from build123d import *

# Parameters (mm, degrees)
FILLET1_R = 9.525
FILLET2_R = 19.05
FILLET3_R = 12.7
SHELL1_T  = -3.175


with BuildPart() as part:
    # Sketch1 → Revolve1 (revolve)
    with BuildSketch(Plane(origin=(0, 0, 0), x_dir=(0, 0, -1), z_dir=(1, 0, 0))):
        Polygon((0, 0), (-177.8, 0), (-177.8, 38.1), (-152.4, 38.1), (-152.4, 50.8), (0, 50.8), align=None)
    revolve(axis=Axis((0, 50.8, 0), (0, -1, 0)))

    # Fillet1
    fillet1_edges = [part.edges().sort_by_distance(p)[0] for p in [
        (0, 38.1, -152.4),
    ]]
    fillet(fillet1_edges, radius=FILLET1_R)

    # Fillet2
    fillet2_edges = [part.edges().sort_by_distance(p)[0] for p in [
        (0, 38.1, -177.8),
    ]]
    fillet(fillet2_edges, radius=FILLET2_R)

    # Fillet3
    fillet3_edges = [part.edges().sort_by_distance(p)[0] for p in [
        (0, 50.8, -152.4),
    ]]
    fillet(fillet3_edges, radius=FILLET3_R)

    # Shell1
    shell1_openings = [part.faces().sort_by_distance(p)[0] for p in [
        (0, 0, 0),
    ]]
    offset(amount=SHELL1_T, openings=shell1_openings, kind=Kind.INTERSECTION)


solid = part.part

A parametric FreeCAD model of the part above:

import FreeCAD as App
import Part
import Sketcher

V = App.Vector
Q = App.Units.Quantity


def edges_at(feature, points):
    """Names of the edges that pass closest to the given points."""
    edges = feature.Shape.Edges
    near = lambda p: min(range(len(edges)), key=lambda i: edges[i].distToShape(Part.Vertex(*p))[0])
    return sorted({f"Edge{near(p) + 1}" for p in points})


def faces_at(feature, points):
    """Names of the faces that lie closest to the given points."""
    faces = feature.Shape.Faces
    near = lambda p: min(range(len(faces)), key=lambda i: faces[i].distToShape(Part.Vertex(*p))[0])
    return sorted({f"Face{near(p) + 1}" for p in points})


def add_polygon(sketch, points):
    """Adds a closed chain of lines whose ends are joined by coincident constraints."""
    first, n = sketch.GeometryCount, len(points)
    for a, b in zip(points, points[1:] + points[:1]):
        sketch.addGeometry(Part.LineSegment(App.Vector(*a, 0), App.Vector(*b, 0)), False)
    for i in range(n):
        sketch.addConstraint(Sketcher.Constraint("Coincident", first + i, 2, first + (i + 1) % n, 1))

doc = App.newDocument("Part")
params = doc.addObject("Spreadsheet::Sheet", "Params")
for row, (alias, value) in enumerate([
    ("sketch1_width", "2 in"),
    ("sketch1_height", "7 in"),
    ("sketch1_height2", "6 in"),
    ("sketch1_width2", "0.5 in"),
    ("revolution_angle", "360 deg"),
    ("fillet_radius", "0.375 in"),
    ("fillet2_radius", "0.75 in"),
    ("fillet3_radius", "0.5 in"),
    ("thickness_wall", "0.125 in"),
], start=1):
    params.set(f"A{row}", alias)
    params.set(f"B{row}", "=" + value)
    params.setAlias(f"B{row}", alias)

body = doc.addObject("PartDesign::Body", "Body")

sketch1 = doc.addObject("Sketcher::SketchObject", "Sketch")
body.addObject(sketch1)
sketch1.AttachmentSupport = (doc.YZ_Plane, [""])
sketch1.MapMode = "FlatFace"
add_polygon(sketch1, [(0, 178), (0, 0), (51, 0), (51, 152), (38, 152), (38, 178)])
sketch1.addConstraint(Sketcher.Constraint("Vertical", 0))
sketch1.addConstraint(Sketcher.Constraint("Horizontal", 1))
sketch1.addConstraint(Sketcher.Constraint("Vertical", 2))
sketch1.addConstraint(Sketcher.Constraint("Horizontal", 3))
sketch1.addConstraint(Sketcher.Constraint("Vertical", 4))
sketch1.addConstraint(Sketcher.Constraint("Horizontal", 5))
sketch1.addConstraint(Sketcher.Constraint("Coincident", 0, 2, -1, 1))
sketch1.addConstraint(Sketcher.Constraint("DistanceX", 1, 1, 1, 2, Q("2 in")))
sketch1.addConstraint(Sketcher.Constraint("DistanceY", 0, 2, 0, 1, Q("7 in")))
sketch1.addConstraint(Sketcher.Constraint("DistanceY", 2, 1, 2, 2, Q("6 in")))
sketch1.addConstraint(Sketcher.Constraint("DistanceX", 3, 2, 3, 1, Q("0.5 in")))
sketch1.setExpression("Constraints[13]", "Params.sketch1_width")
sketch1.setExpression("Constraints[14]", "Params.sketch1_height")
sketch1.setExpression("Constraints[15]", "Params.sketch1_height2")
sketch1.setExpression("Constraints[16]", "Params.sketch1_width2")
revolution = doc.addObject("PartDesign::Revolution", "Revolution")
body.addObject(revolution)
revolution.Profile = sketch1
revolution.ReferenceAxis = (sketch1, ["H_Axis"])
revolution.setExpression("Angle", "Params.revolution_angle")
doc.recompute()

fillet = doc.addObject("PartDesign::Fillet", "Fillet")
body.addObject(fillet)
fillet.Base = (revolution, edges_at(revolution, [(0, 38.1, -152.4)]))
fillet.setExpression("Radius", "Params.fillet_radius")
doc.recompute()

fillet2 = doc.addObject("PartDesign::Fillet", "Fillet001")
body.addObject(fillet2)
fillet2.Base = (fillet, edges_at(fillet, [(0, 38.1, -177.8)]))
fillet2.setExpression("Radius", "Params.fillet2_radius")
doc.recompute()

fillet3 = doc.addObject("PartDesign::Fillet", "Fillet002")
body.addObject(fillet3)
fillet3.Base = (fillet2, edges_at(fillet2, [(0, 50.8, -152.4)]))
fillet3.setExpression("Radius", "Params.fillet3_radius")
doc.recompute()

thickness = doc.addObject("PartDesign::Thickness", "Thickness")
body.addObject(thickness)
thickness.Base = (fillet3, faces_at(fillet3, [(0, 0, 0)]))
thickness.setExpression("Value", "Params.thickness_wall")
thickness.Reversed = True
thickness.Join = "Intersection"

doc.recompute()
